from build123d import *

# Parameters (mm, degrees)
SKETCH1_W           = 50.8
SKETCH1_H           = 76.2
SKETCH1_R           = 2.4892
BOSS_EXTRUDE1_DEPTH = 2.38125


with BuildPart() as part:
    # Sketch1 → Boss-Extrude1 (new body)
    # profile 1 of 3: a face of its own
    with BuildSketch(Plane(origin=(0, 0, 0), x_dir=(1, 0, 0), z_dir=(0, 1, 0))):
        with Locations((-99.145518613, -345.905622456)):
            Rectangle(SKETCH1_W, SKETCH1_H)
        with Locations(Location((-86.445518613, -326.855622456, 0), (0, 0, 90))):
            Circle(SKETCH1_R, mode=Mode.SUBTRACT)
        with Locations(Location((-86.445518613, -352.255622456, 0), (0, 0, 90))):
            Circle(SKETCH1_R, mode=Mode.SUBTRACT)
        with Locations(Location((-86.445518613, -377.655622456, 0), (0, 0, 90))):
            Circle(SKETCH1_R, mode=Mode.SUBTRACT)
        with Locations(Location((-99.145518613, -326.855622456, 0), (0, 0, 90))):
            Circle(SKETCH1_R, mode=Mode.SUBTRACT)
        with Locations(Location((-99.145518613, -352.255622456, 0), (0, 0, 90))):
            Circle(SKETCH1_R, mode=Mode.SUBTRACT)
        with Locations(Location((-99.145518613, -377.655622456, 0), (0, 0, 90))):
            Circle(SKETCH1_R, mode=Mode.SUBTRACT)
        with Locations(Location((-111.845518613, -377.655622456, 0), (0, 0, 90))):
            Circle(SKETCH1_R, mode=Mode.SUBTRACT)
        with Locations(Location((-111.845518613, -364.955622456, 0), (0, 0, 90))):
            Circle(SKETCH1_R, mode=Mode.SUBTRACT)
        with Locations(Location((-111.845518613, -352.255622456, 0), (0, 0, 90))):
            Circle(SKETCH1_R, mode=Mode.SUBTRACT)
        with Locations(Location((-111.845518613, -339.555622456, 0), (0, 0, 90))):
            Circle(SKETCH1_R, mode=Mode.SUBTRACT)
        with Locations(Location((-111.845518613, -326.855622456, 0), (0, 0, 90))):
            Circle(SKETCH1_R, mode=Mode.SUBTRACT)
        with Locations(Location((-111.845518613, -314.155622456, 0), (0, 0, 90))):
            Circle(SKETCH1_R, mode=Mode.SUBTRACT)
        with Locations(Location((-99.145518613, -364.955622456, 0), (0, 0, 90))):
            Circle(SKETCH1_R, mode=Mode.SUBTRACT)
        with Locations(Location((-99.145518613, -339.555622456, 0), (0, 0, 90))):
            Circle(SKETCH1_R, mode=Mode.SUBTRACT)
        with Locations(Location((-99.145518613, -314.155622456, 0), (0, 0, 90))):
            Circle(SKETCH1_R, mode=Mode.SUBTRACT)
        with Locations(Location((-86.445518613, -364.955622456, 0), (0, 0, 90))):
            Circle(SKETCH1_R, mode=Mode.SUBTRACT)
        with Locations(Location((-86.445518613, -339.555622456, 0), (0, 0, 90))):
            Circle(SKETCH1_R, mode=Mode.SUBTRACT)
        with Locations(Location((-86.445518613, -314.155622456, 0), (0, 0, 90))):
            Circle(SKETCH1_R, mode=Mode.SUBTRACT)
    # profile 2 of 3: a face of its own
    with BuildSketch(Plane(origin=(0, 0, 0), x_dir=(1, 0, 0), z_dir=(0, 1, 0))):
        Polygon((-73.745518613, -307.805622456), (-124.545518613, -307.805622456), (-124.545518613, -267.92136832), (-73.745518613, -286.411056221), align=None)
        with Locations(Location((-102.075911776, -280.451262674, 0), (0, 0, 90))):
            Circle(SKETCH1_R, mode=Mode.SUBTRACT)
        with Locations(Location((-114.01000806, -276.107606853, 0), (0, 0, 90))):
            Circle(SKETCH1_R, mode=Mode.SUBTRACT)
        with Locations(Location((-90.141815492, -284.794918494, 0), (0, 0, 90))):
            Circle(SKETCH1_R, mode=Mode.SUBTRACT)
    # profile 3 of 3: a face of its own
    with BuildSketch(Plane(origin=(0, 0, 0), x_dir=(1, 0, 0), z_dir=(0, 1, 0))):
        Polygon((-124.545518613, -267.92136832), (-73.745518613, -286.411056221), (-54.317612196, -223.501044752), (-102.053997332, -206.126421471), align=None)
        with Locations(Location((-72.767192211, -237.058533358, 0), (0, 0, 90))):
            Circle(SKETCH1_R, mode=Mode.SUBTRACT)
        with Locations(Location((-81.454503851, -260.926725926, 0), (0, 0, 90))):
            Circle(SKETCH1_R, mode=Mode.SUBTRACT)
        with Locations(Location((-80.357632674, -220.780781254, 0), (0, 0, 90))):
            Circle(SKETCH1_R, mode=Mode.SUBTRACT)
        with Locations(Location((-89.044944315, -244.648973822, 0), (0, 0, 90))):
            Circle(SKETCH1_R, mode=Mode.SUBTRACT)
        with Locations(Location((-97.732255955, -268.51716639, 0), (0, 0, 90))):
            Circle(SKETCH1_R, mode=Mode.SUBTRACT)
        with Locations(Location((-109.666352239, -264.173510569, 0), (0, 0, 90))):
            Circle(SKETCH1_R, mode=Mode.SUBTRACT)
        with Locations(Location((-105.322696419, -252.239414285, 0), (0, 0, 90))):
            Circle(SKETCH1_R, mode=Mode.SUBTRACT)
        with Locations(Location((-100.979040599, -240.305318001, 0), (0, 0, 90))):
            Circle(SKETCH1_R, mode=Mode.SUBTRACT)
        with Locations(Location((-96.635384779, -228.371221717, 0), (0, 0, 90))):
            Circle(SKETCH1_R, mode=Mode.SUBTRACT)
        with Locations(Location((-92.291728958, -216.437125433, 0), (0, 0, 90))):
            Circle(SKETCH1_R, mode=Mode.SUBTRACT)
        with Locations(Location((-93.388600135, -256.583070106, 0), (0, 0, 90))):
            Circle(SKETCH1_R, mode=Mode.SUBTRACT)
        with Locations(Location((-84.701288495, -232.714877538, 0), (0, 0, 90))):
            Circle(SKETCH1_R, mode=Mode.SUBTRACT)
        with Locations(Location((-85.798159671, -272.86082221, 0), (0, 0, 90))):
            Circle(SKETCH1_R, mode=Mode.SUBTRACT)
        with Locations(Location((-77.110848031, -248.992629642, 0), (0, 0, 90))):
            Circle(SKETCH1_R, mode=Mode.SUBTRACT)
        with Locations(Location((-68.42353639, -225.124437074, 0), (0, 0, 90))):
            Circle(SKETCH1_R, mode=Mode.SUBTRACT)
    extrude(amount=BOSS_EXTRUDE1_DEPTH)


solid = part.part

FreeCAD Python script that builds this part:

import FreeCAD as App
import Part
import Sketcher
Q = App.Units.Quantity

doc = App.newDocument("Part")
params = doc.addObject("Spreadsheet::Sheet", "Params")
for row, (alias, value) in enumerate([
    ("sketch1_width", "2 in"),
    ("sketch1_length", "2 in"),
    ("sketch1_diameter", "0.196 in"),
    ("pad1_length", "0.09375 in"),
], start=1):
    params.set(f"A{row}", alias)
    params.set(f"B{row}", "=" + value)
    params.setAlias(f"B{row}", alias)

body = doc.addObject("PartDesign::Body", "Body")

# Sketch on XZ plane
sketch1 = doc.addObject("Sketcher::SketchObject", "Sketch")
body.addObject(sketch1)
sketch1.AttachmentSupport = (doc.XZ_Plane, [""])
sketch1.MapMode = "FlatFace"
sketch1.addGeometry([
    Part.LineSegment(App.Vector(-124.545519, 384.005622, 0), App.Vector(-73.745519, 384.005622, 0)),  # 0
    Part.LineSegment(App.Vector(-73.745519, 384.005622, 0), App.Vector(-73.745519, 286.411056, 0)),  # 1
    Part.LineSegment(App.Vector(-73.745519, 286.411056, 0), App.Vector(-54.317612, 223.501045, 0)),  # 2
    Part.LineSegment(App.Vector(-54.317612, 223.501045, 0), App.Vector(-102.053997, 206.126421, 0)),  # 3
    Part.LineSegment(App.Vector(-102.053997, 206.126421, 0), App.Vector(-124.545519, 267.921368, 0)),  # 4
    Part.LineSegment(App.Vector(-124.545519, 267.921368, 0), App.Vector(-124.545519, 384.005622, 0)),  # 5
    Part.Circle(App.Vector(-111.845519, 377.655622, 0), App.Vector(0, 0, 1), 2.4892),  # 6
    Part.Circle(App.Vector(-111.845519, 364.955622, 0), App.Vector(0, 0, 1), 2.4892),  # 7
    Part.Circle(App.Vector(-111.845519, 352.255622, 0), App.Vector(0, 0, 1), 2.4892),  # 8
    Part.Circle(App.Vector(-99.145519, 377.655622, 0), App.Vector(0, 0, 1), 2.4892),  # 9
    Part.Circle(App.Vector(-99.145519, 364.955622, 0), App.Vector(0, 0, 1), 2.4892),  # 10
    Part.Circle(App.Vector(-86.445519, 377.655622, 0), App.Vector(0, 0, 1), 2.4892),  # 11
    Part.Circle(App.Vector(-86.445519, 364.955622, 0), App.Vector(0, 0, 1), 2.4892),  # 12
    Part.Circle(App.Vector(-99.145519, 352.255622, 0), App.Vector(0, 0, 1), 2.4892),  # 13
    Part.Circle(App.Vector(-86.445519, 352.255622, 0), App.Vector(0, 0, 1), 2.4892),  # 14
    Part.Circle(App.Vector(-111.845519, 339.555622, 0), App.Vector(0, 0, 1), 2.4892),  # 15
    Part.Circle(App.Vector(-111.845519, 326.855622, 0), App.Vector(0, 0, 1), 2.4892),  # 16
    Part.Circle(App.Vector(-111.845519, 314.155622, 0), App.Vector(0, 0, 1), 2.4892),  # 17
    Part.Circle(App.Vector(-99.145519, 339.555622, 0), App.Vector(0, 0, 1), 2.4892),  # 18
    Part.Circle(App.Vector(-86.445519, 339.555622, 0), App.Vector(0, 0, 1), 2.4892),  # 19
    Part.Circle(App.Vector(-99.145519, 326.855622, 0), App.Vector(0, 0, 1), 2.4892),  # 20
    Part.Circle(App.Vector(-99.145519, 314.155622, 0), App.Vector(0, 0, 1), 2.4892),  # 21
    Part.Circle(App.Vector(-86.445519, 326.855622, 0), App.Vector(0, 0, 1), 2.4892),  # 22
    Part.Circle(App.Vector(-86.445519, 314.155622, 0), App.Vector(0, 0, 1), 2.4892),  # 23
    Part.Circle(App.Vector(-114.010008, 276.107607, 0), App.Vector(0, 0, 1), 2.4892),  # 24
    Part.Circle(App.Vector(-90.141815, 284.794918, 0), App.Vector(0, 0, 1), 2.4892),  # 25
    Part.Circle(App.Vector(-102.075912, 280.451263, 0), App.Vector(0, 0, 1), 2.4892),  # 26
    Part.Circle(App.Vector(-68.423536, 225.124437, 0), App.Vector(0, 0, 1), 2.4892),  # 27
    Part.Circle(App.Vector(-109.666352, 264.173511, 0), App.Vector(0, 0, 1), 2.4892),  # 28
    Part.Circle(App.Vector(-97.732256, 268.517166, 0), App.Vector(0, 0, 1), 2.4892),  # 29
    Part.Circle(App.Vector(-105.322696, 252.239414, 0), App.Vector(0, 0, 1), 2.4892),  # 30
    Part.Circle(App.Vector(-93.3886, 256.58307, 0), App.Vector(0, 0, 1), 2.4892),  # 31
    Part.Circle(App.Vector(-89.044944, 244.648974, 0), App.Vector(0, 0, 1), 2.4892),  # 32
    Part.Circle(App.Vector(-85.79816, 272.860822, 0), App.Vector(0, 0, 1), 2.4892),  # 33
    Part.Circle(App.Vector(-81.454504, 260.926726, 0), App.Vector(0, 0, 1), 2.4892),  # 34
    Part.Circle(App.Vector(-77.110848, 248.99263, 0), App.Vector(0, 0, 1), 2.4892),  # 35
    Part.Circle(App.Vector(-100.979041, 240.305318, 0), App.Vector(0, 0, 1), 2.4892),  # 36
    Part.Circle(App.Vector(-96.635385, 228.371222, 0), App.Vector(0, 0, 1), 2.4892),  # 37
    Part.Circle(App.Vector(-92.291729, 216.437125, 0), App.Vector(0, 0, 1), 2.4892),  # 38
    Part.Circle(App.Vector(-84.701288, 232.714878, 0), App.Vector(0, 0, 1), 2.4892),  # 39
    Part.Circle(App.Vector(-72.767192, 237.058533, 0), App.Vector(0, 0, 1), 2.4892),  # 40
    Part.Circle(App.Vector(-80.357633, 220.780781, 0), App.Vector(0, 0, 1), 2.4892),  # 41
], False)
sketch1.addConstraint([
    Sketcher.Constraint("Coincident", 0, 2, 1, 1),
    Sketcher.Constraint("Coincident", 1, 2, 2, 1),
    Sketcher.Constraint("Coincident", 2, 2, 3, 1),
    Sketcher.Constraint("Coincident", 3, 2, 4, 1),
    Sketcher.Constraint("Coincident", 4, 2, 5, 1),
    Sketcher.Constraint("Coincident", 5, 2, 0, 1),
    Sketcher.Constraint("Horizontal", 0),
    Sketcher.Constraint("Vertical", 1),
    Sketcher.Constraint("Vertical", 5),
    Sketcher.Constraint("Equal", 6, 7),
    Sketcher.Constraint("Equal", 7, 8),
    Sketcher.Constraint("Equal", 8, 9),
    Sketcher.Constraint("Equal", 9, 10),
    Sketcher.Constraint("Equal", 10, 11),
    Sketcher.Constraint("Equal", 11, 12),
    Sketcher.Constraint("Equal", 12, 13),
    Sketcher.Constraint("Equal", 13, 14),
    Sketcher.Constraint("Equal", 14, 15),
    Sketcher.Constraint("Equal", 15, 16),
    Sketcher.Constraint("Equal", 16, 17),
    Sketcher.Constraint("Equal", 17, 18),
    Sketcher.Constraint("Equal", 18, 19),
    Sketcher.Constraint("Equal", 19, 20),
    Sketcher.Constraint("Equal", 20, 21),
    Sketcher.Constraint("Equal", 21, 22),
    Sketcher.Constraint("Equal", 22, 23),
    Sketcher.Constraint("Equal", 23, 24),
    Sketcher.Constraint("Equal", 24, 25),
    Sketcher.Constraint("Equal", 25, 26),
    Sketcher.Constraint("Equal", 26, 27),
    Sketcher.Constraint("Equal", 27, 28),
    Sketcher.Constraint("Equal", 28, 29),
    Sketcher.Constraint("Equal", 29, 30),
    Sketcher.Constraint("Equal", 30, 31),
    Sketcher.Constraint("Equal", 31, 32),
    Sketcher.Constraint("Equal", 32, 33),
    Sketcher.Constraint("Equal", 33, 34),
    Sketcher.Constraint("Equal", 34, 35),
    Sketcher.Constraint("Equal", 35, 36),
    Sketcher.Constraint("Equal", 36, 37),
    Sketcher.Constraint("Equal", 37, 38),
    Sketcher.Constraint("Equal", 38, 39),
    Sketcher.Constraint("Equal", 39, 40),
    Sketcher.Constraint("Equal", 40, 41),
    Sketcher.Constraint("Perpendicular", 3, 4),
    Sketcher.Constraint("Horizontal", 6, 3, 9, 3),
    Sketcher.Constraint("Horizontal", 7, 3, 10, 3),
    Sketcher.Constraint("Horizontal", 9, 3, 11, 3),
    Sketcher.Constraint("Horizontal", 10, 3, 12, 3),
    Sketcher.Constraint("Horizontal", 8, 3, 13, 3),
    Sketcher.Constraint("Horizontal", 13, 3, 14, 3),
    Sketcher.Constraint("Horizontal", 15, 3, 18, 3),
    Sketcher.Constraint("Horizontal", 18, 3, 19, 3),
    Sketcher.Constraint("Horizontal", 16, 3, 20, 3),
    Sketcher.Constraint("Horizontal", 17, 3, 21, 3),
    Sketcher.Constraint("Horizontal", 20, 3, 22, 3),
    Sketcher.Constraint("Horizontal", 21, 3, 23, 3),
    Sketcher.Constraint("Vertical", 6, 3, 7, 3),
    Sketcher.Constraint("Vertical", 7, 3, 8, 3),
    Sketcher.Constraint("Vertical", 9, 3, 10, 3),
    Sketcher.Constraint("Vertical", 11, 3, 12, 3),
    Sketcher.Constraint("Vertical", 10, 3, 13, 3),
    Sketcher.Constraint("Vertical", 12, 3, 14, 3),
    Sketcher.Constraint("Vertical", 8, 3, 15, 3),
    Sketcher.Constraint("Vertical", 15, 3, 16, 3),
    Sketcher.Constraint("Vertical", 16, 3, 17, 3),
    Sketcher.Constraint("Vertical", 13, 3, 18, 3),
    Sketcher.Constraint("Vertical", 14, 3, 19, 3),
    Sketcher.Constraint("Vertical", 18, 3, 20, 3),
    Sketcher.Constraint("Vertical", 20, 3, 21, 3),
    Sketcher.Constraint("Vertical", 19, 3, 22, 3),
    Sketcher.Constraint("Vertical", 22, 3, 23, 3),
    Sketcher.Constraint("DistanceX", 0, 1, 0, 2, Q("2 in")),
    Sketcher.Constraint("Distance", 3, Q("2 in")),
    Sketcher.Constraint("Diameter", 6, Q("0.196 in")),
    Sketcher.Constraint("Angle", 3, Q("-160 deg")),
    Sketcher.Constraint("DistanceY", 8, 3, 6, 3, Q("1 in")),
    Sketcher.Constraint("DistanceX", 6, 3, 11, 3, Q("1 in")),
    Sketcher.Constraint("DistanceY", 15, 3, 7, 3, Q("1 in")),
    Sketcher.Constraint("DistanceY", 16, 3, 8, 3, Q("1 in")),
    Sketcher.Constraint("DistanceY", 17, 3, 15, 3, Q("1 in")),
    Sketcher.Constraint("DistanceX", 9, 3, 0, 2, Q("1 in")),
    Sketcher.Constraint("DistanceY", 7, 3, 6, 3, Q("0.5 in")),
    Sketcher.Constraint("DistanceX", 6, 3, 9, 3, Q("0.5 in")),
    Sketcher.Constraint("DistanceY", 11, 3, 0, 2, Q("0.25 in")),
    Sketcher.Constraint("DistanceX", 31, 3, -1, 1, Q("93.3886 mm")),
    Sketcher.Constraint("DistanceY", 3, 2, 37, 3, Q("22.2448 mm")),
    Sketcher.Constraint("DistanceY", 4, 2, 29, 3, Q("0.595798 mm")),
    Sketcher.Constraint("Distance", 4, Q("65.760809 mm")),
    Sketcher.Constraint("DistanceY", 1, 2, 1, 1, Q("97.594566 mm")),
    Sketcher.Constraint("DistanceY", 5, 1, 5, 2, Q("116.084254 mm")),
    Sketcher.Constraint("DistanceX", 6, 3, -1, 1, Q("111.845519 mm")),
    Sketcher.Constraint("DistanceX", 24, 3, -1, 1, Q("114.010008 mm")),
    Sketcher.Constraint("DistanceY", -1, 1, 25, 3, Q("284.794918 mm")),
    Sketcher.Constraint("DistanceX", 26, 3, -1, 1, Q("102.075912 mm")),
    Sketcher.Constraint("DistanceY", -1, 1, 28, 3, Q("264.173511 mm")),
    Sketcher.Constraint("DistanceY", -1, 1, 31, 3, Q("256.58307 mm")),
    Sketcher.Constraint("DistanceX", 33, 3, -1, 1, Q("85.79816 mm")),
    Sketcher.Constraint("DistanceX", 35, 3, -1, 1, Q("77.110848 mm")),
    Sketcher.Constraint("DistanceY", -1, 1, 35, 3, Q("248.99263 mm")),
    Sketcher.Constraint("DistanceX", 36, 3, -1, 1, Q("100.979041 mm")),
    Sketcher.Constraint("DistanceY", -1, 1, 36, 3, Q("240.305318 mm")),
    Sketcher.Constraint("DistanceY", -1, 1, 37, 3, Q("228.371222 mm")),
    Sketcher.Constraint("DistanceX", 38, 3, -1, 1, Q("92.291729 mm")),
    Sketcher.Constraint("DistanceX", 39, 3, -1, 1, Q("84.701288 mm")),
    Sketcher.Constraint("DistanceY", -1, 1, 41, 3, Q("220.780781 mm")),
    Sketcher.Constraint("DistanceY", 24, 3, 25, 3, Q("8.687312 mm")),
    Sketcher.Constraint("DistanceY", 26, 3, 21, 3, Q("33.70436 mm")),
    Sketcher.Constraint("DistanceX", 25, 3, 27, 3, Q("21.718279 mm")),
    Sketcher.Constraint("DistanceY", 27, 3, 25, 3, Q("59.670481 mm")),
    Sketcher.Constraint("DistanceX", 24, 3, 27, 3, Q("45.586472 mm")),
    Sketcher.Constraint("DistanceX", 28, 3, 26, 3, Q("7.59044 mm")),
    Sketcher.Constraint("DistanceX", 29, 3, 25, 3, Q("7.59044 mm")),
    Sketcher.Constraint("DistanceX", 30, 3, 29, 3, Q("7.59044 mm")),
    Sketcher.Constraint("DistanceY", 30, 3, 26, 3, Q("28.211848 mm")),
    Sketcher.Constraint("DistanceY", 32, 3, 30, 3, Q("7.59044 mm")),
    Sketcher.Constraint("DistanceX", 29, 3, 32, 3, Q("8.687312 mm")),
    Sketcher.Constraint("DistanceY", 33, 3, 26, 3, Q("7.59044 mm")),
    Sketcher.Constraint("DistanceY", 34, 3, 29, 3, Q("7.59044 mm")),
    Sketcher.Constraint("DistanceX", 32, 3, 34, 3, Q("7.59044 mm")),
    Sketcher.Constraint("DistanceX", 37, 3, 32, 3, Q("7.59044 mm")),
    Sketcher.Constraint("DistanceY", 38, 3, 27, 3, Q("8.687312 mm")),
    Sketcher.Constraint("DistanceY", 39, 3, 36, 3, Q("7.59044 mm")),
    Sketcher.Constraint("DistanceY", 40, 3, 32, 3, Q("7.59044 mm")),
    Sketcher.Constraint("DistanceX", 34, 3, 40, 3, Q("8.687312 mm")),
    Sketcher.Constraint("DistanceX", 41, 3, 40, 3, Q("7.59044 mm")),
])
sketch1.setExpression("Constraints[72]", "Params.sketch1_width")
sketch1.setExpression("Constraints[73]", "Params.sketch1_length")
sketch1.setExpression("Constraints[74]", "Params.sketch1_diameter")
pad1 = doc.addObject("PartDesign::Pad", "Pad")
body.addObject(pad1)
pad1.Profile = sketch1
pad1.setExpression("Length", "Params.pad1_length")
pad1.Reversed = True

doc.recompute()
